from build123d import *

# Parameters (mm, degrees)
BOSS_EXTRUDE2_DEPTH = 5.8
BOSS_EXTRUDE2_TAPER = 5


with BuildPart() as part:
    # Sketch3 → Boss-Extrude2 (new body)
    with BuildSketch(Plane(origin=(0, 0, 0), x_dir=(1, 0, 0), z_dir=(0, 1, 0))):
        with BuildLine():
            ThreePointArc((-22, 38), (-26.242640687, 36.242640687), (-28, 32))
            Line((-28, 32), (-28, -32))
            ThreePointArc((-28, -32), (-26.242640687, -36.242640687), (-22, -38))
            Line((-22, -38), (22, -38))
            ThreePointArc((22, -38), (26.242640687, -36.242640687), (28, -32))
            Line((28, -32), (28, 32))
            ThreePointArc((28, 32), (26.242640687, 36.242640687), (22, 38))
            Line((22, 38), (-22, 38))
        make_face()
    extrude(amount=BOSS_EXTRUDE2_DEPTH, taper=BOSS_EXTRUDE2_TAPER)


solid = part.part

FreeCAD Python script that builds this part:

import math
import FreeCAD as App
import Part
import Sketcher
from FreeCAD import Vector
Q = App.Units.Quantity

doc = App.newDocument("Part")
body = doc.addObject("PartDesign::Body", "Body")

# Sketch on XZ plane
sketch1 = doc.addObject("Sketcher::SketchObject", "Sketch")
body.addObject(sketch1)
sketch1.AttachmentSupport = (doc.XZ_Plane, [""])
sketch1.MapMode = "FlatFace"
sketch1.addGeometry(Part.ArcOfCircle(Part.Circle(Vector(-22, -32, 0), Vector(0, 0, 1), 6), math.radians(180), math.radians(270)), False)
sketch1.addGeometry(Part.LineSegment(Vector(-28, -32, 0), Vector(-28, 32, 0)), False)
sketch1.addGeometry(Part.ArcOfCircle(Part.Circle(Vector(-22, 32, 0), Vector(0, 0, 1), 6), math.radians(90), math.radians(180)), False)
sketch1.addGeometry(Part.LineSegment(Vector(-22, 38, 0), Vector(22, 38, 0)), False)
sketch1.addGeometry(Part.ArcOfCircle(Part.Circle(Vector(22, 32, 0), Vector(0, 0, 1), 6), math.radians(0), math.radians(90)), False)
sketch1.addGeometry(Part.LineSegment(Vector(28, 32, 0), Vector(28, -32, 0)), False)
sketch1.addGeometry(Part.ArcOfCircle(Part.Circle(Vector(22, -32, 0), Vector(0, 0, 1), 6), math.radians(-90), math.radians(0)), False)
sketch1.addGeometry(Part.LineSegment(Vector(22, -38, 0), Vector(-22, -38, 0)), False)
sketch1.addConstraint(Sketcher.Constraint("Tangent", 0, 1, 1, 1))
sketch1.addConstraint(Sketcher.Constraint("Tangent", 1, 2, 2, 2))
sketch1.addConstraint(Sketcher.Constraint("Tangent", 2, 1, 3, 1))
sketch1.addConstraint(Sketcher.Constraint("Tangent", 3, 2, 4, 2))
sketch1.addConstraint(Sketcher.Constraint("Tangent", 4, 1, 5, 1))
sketch1.addConstraint(Sketcher.Constraint("Tangent", 5, 2, 6, 2))
sketch1.addConstraint(Sketcher.Constraint("Tangent", 6, 1, 7, 1))
sketch1.addConstraint(Sketcher.Constraint("Tangent", 7, 2, 0, 2))
sketch1.addConstraint(Sketcher.Constraint("Vertical", 1))
sketch1.addConstraint(Sketcher.Constraint("Horizontal", 3))
sketch1.addConstraint(Sketcher.Constraint("Vertical", 5))
sketch1.addConstraint(Sketcher.Constraint("Horizontal", 7))
sketch1.addConstraint(Sketcher.Constraint("Equal", 0, 2))
sketch1.addConstraint(Sketcher.Constraint("Equal", 2, 4))
sketch1.addConstraint(Sketcher.Constraint("Equal", 4, 6))
sketch1.addConstraint(Sketcher.Constraint("Symmetric", 0, 3, 4, 3, -1, 1))
sketch1.addConstraint(Sketcher.Constraint("Radius", 0, Q("6 mm")))
sketch1.addConstraint(Sketcher.Constraint("DistanceX", 3, 1, 3, 2, Q("44 mm")))
sketch1.addConstraint(Sketcher.Constraint("DistanceY", 1, 1, 1, 2, Q("64 mm")))
pad1 = doc.addObject("PartDesign::Pad", "Pad")
body.addObject(pad1)
pad1.Profile = sketch1
pad1.Length = 5.8
pad1.Reversed = True
pad1.TaperAngle = -5

doc.recompute()
